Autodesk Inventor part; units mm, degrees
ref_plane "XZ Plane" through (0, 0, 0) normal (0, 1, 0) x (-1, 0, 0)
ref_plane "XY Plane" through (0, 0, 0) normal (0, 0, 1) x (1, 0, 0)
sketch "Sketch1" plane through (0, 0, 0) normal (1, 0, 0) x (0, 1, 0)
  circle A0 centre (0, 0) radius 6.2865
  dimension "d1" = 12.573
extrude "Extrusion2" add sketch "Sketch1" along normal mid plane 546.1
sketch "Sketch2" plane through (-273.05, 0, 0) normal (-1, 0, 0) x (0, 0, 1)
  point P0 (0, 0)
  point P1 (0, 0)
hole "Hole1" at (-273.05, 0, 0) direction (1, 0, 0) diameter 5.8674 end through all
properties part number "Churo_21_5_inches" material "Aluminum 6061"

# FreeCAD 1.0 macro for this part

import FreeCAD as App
import Part
import Sketcher

V = App.Vector
Q = App.Units.Quantity

doc = App.newDocument("Part")
params = doc.addObject("Spreadsheet::Sheet", "Params")
for row, (alias, value) in enumerate([
    ("sketch1_diameter", "0.495 in"),
    ("pad1_length", "21.5 in"),
    ("sketch2_diameter", "0.231 in"),
    ("hole_diameter", "0.231 in"),
], start=1):
    params.set(f"A{row}", alias)
    params.set(f"B{row}", "=" + value)
    params.setAlias(f"B{row}", alias)

body = doc.addObject("PartDesign::Body", "Body")

# Sketch on YZ plane
sketch1 = body.newObject("Sketcher::SketchObject", "Sketch")
sketch1.AttachmentSupport = (doc.getObject("YZ_Plane"), [""])
sketch1.MapMode = "FlatFace"
sketch1.addGeometry(Part.Circle(V(0, 0, 0), V(0, 0, 1), 6), False)
sketch1.addConstraint([
    Sketcher.Constraint("Coincident", 0, 3, -1, 1),
    Sketcher.Constraint("Diameter", 0, Q("0.495 in")),
])
sketch1.setExpression("Constraints[1]", "Params.sketch1_diameter")
pad1 = body.newObject("PartDesign::Pad", "Pad")
pad1.Profile = sketch1
pad1.setExpression("Length", "Params.pad1_length")
pad1.Midplane = True

# Sketch on YZ plane
sketch2 = body.newObject("Sketcher::SketchObject", "Sketch001")
sketch2.AttachmentSupport = (doc.getObject("YZ_Plane"), [""])
sketch2.MapMode = "FlatFace"
sketch2.AttachmentOffset = App.Placement(V(0, 0, -10.75 * 25.4), App.Rotation())
sketch2.addGeometry(Part.Circle(V(0, 0, 0), V(0, 0, 1), 2.9), False)
sketch2.addConstraint([
    Sketcher.Constraint("Coincident", 0, 3, -1, 1),
    Sketcher.Constraint("Diameter", 0, Q("0.231 in")),
])
sketch2.setExpression("Constraints[1]", "Params.sketch2_diameter")
doc.recompute()
hole = body.newObject("PartDesign::Hole", "Hole")
hole.Profile = sketch2
hole.ThreadType = "None"
hole.setExpression("Diameter", "Params.hole_diameter")
hole.DepthType = "ThroughAll"
hole.Reversed = True

doc.recompute()
